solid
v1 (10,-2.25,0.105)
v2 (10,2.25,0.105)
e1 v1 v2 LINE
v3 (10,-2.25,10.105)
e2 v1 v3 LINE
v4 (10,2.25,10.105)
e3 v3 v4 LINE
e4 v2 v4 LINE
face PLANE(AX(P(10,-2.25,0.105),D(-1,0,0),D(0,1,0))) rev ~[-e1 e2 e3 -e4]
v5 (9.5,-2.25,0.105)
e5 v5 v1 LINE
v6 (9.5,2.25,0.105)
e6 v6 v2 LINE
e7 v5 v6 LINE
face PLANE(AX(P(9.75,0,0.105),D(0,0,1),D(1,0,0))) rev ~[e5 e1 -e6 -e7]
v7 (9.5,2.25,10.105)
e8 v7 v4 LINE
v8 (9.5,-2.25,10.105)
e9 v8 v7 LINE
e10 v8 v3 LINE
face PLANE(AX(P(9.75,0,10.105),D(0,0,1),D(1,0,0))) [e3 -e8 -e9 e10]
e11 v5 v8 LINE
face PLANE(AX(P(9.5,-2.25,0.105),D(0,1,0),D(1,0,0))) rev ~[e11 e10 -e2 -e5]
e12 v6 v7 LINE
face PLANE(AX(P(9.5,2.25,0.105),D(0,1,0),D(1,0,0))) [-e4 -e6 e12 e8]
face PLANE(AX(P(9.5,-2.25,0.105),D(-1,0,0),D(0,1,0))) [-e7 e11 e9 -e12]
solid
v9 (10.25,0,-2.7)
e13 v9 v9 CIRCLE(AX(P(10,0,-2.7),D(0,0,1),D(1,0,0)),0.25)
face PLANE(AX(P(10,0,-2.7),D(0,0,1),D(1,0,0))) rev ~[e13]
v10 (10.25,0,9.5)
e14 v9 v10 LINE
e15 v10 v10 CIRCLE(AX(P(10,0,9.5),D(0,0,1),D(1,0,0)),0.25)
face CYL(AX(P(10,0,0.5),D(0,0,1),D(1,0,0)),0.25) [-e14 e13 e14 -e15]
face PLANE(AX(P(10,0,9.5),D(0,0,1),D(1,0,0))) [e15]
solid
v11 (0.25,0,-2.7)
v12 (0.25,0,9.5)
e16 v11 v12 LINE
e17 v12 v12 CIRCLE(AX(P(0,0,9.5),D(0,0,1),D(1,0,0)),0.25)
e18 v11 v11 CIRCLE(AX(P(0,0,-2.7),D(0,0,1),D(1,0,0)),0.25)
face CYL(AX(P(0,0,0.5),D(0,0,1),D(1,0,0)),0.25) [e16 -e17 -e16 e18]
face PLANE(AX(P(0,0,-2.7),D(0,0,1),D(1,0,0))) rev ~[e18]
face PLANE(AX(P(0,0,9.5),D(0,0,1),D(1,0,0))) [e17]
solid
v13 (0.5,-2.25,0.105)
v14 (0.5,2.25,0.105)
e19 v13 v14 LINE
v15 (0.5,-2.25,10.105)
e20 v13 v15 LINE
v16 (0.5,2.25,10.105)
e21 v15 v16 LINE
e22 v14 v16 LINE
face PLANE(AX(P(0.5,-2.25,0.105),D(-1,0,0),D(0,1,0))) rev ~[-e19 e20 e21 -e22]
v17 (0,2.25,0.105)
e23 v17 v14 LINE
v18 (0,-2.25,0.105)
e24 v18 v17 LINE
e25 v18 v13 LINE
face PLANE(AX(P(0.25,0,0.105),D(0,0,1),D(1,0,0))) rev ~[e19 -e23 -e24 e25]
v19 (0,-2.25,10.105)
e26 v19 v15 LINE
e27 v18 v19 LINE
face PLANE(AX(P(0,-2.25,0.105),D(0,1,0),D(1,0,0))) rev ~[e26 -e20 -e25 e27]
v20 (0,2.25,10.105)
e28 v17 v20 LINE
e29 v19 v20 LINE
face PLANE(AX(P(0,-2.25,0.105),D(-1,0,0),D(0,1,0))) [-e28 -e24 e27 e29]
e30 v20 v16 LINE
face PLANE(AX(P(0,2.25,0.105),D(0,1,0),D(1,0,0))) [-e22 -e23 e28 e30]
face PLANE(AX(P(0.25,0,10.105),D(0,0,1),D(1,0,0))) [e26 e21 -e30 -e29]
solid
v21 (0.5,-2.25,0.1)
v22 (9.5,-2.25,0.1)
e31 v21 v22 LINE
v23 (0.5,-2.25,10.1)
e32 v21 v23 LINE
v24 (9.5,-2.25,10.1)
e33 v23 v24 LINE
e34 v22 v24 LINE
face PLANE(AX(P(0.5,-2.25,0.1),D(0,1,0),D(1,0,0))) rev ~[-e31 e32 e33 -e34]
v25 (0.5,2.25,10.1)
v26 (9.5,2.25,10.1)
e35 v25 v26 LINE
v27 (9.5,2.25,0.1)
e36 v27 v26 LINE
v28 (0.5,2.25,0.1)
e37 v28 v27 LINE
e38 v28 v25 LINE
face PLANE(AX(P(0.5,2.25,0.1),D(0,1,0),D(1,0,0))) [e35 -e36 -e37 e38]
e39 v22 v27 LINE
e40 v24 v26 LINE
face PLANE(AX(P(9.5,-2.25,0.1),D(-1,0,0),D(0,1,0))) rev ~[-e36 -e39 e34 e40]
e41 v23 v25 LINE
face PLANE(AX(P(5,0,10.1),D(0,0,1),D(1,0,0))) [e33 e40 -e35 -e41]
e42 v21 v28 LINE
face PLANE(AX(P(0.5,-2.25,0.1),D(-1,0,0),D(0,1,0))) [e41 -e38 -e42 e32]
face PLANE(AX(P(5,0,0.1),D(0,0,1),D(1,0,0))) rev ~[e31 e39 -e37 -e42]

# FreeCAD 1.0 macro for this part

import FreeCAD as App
import Part
import Sketcher
from FreeCAD import Vector

doc = App.newDocument("Part")
body = doc.addObject("PartDesign::Body", "Body")

# Sketch on XY plane
sketch1 = body.newObject("Sketcher::SketchObject", "Sketch")
sketch1.AttachmentSupport = (doc.getObject("XY_Plane"), [""])
sketch1.MapMode = "FlatFace"
sketch1.AttachmentOffset = App.Placement(Vector(0, 0, 0.1), App.Rotation())
sketch1.addGeometry(Part.LineSegment(Vector(0.5, 2.25, 0), Vector(0.5, -2.25, 0)), False)
sketch1.addGeometry(Part.LineSegment(Vector(0.5, -2.25, 0), Vector(9.5, -2.25, 0)), False)
sketch1.addGeometry(Part.LineSegment(Vector(9.5, -2.25, 0), Vector(9.5, 2.25, 0)), False)
sketch1.addGeometry(Part.LineSegment(Vector(9.5, 2.25, 0), Vector(0.5, 2.25, 0)), False)
sketch1.addConstraint(Sketcher.Constraint("Coincident", 0, 2, 1, 1))
sketch1.addConstraint(Sketcher.Constraint("Coincident", 1, 2, 2, 1))
sketch1.addConstraint(Sketcher.Constraint("Coincident", 2, 2, 3, 1))
sketch1.addConstraint(Sketcher.Constraint("Coincident", 3, 2, 0, 1))
sketch1.addConstraint(Sketcher.Constraint("Vertical", 0))
sketch1.addConstraint(Sketcher.Constraint("Horizontal", 1))
sketch1.addConstraint(Sketcher.Constraint("Vertical", 2))
sketch1.addConstraint(Sketcher.Constraint("Horizontal", 3))
sketch1.addConstraint(Sketcher.Constraint("DistanceX", 1, 1, 1, 2, 9.0))
sketch1.addConstraint(Sketcher.Constraint("DistanceY", 0, 2, 0, 1, 4.5))
sketch1.addConstraint(Sketcher.Constraint("DistanceX", -1, 1, 0, 2, 0.5))
sketch1.addConstraint(Sketcher.Constraint("DistanceY", 0, 2, -1, 1, 2.25))
pad1 = body.newObject("PartDesign::Pad", "Pad")
pad1.Profile = sketch1
pad1.Length = 10
body2 = doc.addObject("PartDesign::Body", "Body001")
body2.AllowCompound = True

# Sketch on XY plane
sketch2 = body2.newObject("Sketcher::SketchObject", "Sketch001")
sketch2.AttachmentSupport = (doc.getObject("XY_Plane001"), [""])
sketch2.MapMode = "FlatFace"
sketch2.AttachmentOffset = App.Placement(Vector(0, 0, 0.5), App.Rotation())
sketch2.addGeometry(Part.Circle(Vector(0, 0, 0), Vector(0, 0, 1), 0.25), False)
sketch2.addGeometry(Part.Circle(Vector(10, 0, 0), Vector(0, 0, 1), 0.25), False)
sketch2.addConstraint(Sketcher.Constraint("Coincident", 0, 3, -1, 1))
sketch2.addConstraint(Sketcher.Constraint("Equal", 0, 1))
sketch2.addConstraint(Sketcher.Constraint("PointOnObject", 1, 3, -1))
sketch2.addConstraint(Sketcher.Constraint("Diameter", 0, 0.5))
sketch2.addConstraint(Sketcher.Constraint("DistanceX", -1, 1, 1, 3, 10.0))
pad2 = body2.newObject("PartDesign::Pad", "Pad001")
pad2.Profile = sketch2
pad2.Type = "TwoLengths"
pad2.Length = 9
pad2.Length2 = 3.2
body3 = doc.addObject("PartDesign::Body", "Body002")
body3.AllowCompound = True

# Sketch on XY plane
sketch3 = body3.newObject("Sketcher::SketchObject", "Sketch002")
sketch3.AttachmentSupport = (doc.getObject("XY_Plane002"), [""])
sketch3.MapMode = "FlatFace"
sketch3.AttachmentOffset = App.Placement(Vector(0, 0, 0.105), App.Rotation())
sketch3.addGeometry(Part.LineSegment(Vector(0, 2.25, 0), Vector(0, -2.25, 0)), False)
sketch3.addGeometry(Part.LineSegment(Vector(0, -2.25, 0), Vector(0.5, -2.25, 0)), False)
sketch3.addGeometry(Part.LineSegment(Vector(0.5, -2.25, 0), Vector(0.5, 2.25, 0)), False)
sketch3.addGeometry(Part.LineSegment(Vector(0.5, 2.25, 0), Vector(0, 2.25, 0)), False)
sketch3.addGeometry(Part.LineSegment(Vector(9.5, 2.25, 0), Vector(9.5, -2.25, 0)), False)
sketch3.addGeometry(Part.LineSegment(Vector(9.5, -2.25, 0), Vector(10, -2.25, 0)), False)
sketch3.addGeometry(Part.LineSegment(Vector(10, -2.25, 0), Vector(10, 2.25, 0)), False)
sketch3.addGeometry(Part.LineSegment(Vector(10, 2.25, 0), Vector(9.5, 2.25, 0)), False)
sketch3.addConstraint(Sketcher.Constraint("Coincident", 0, 2, 1, 1))
sketch3.addConstraint(Sketcher.Constraint("Coincident", 1, 2, 2, 1))
sketch3.addConstraint(Sketcher.Constraint("Coincident", 2, 2, 3, 1))
sketch3.addConstraint(Sketcher.Constraint("Coincident", 3, 2, 0, 1))
sketch3.addConstraint(Sketcher.Constraint("Coincident", 4, 2, 5, 1))
sketch3.addConstraint(Sketcher.Constraint("Coincident", 5, 2, 6, 1))
sketch3.addConstraint(Sketcher.Constraint("Coincident", 6, 2, 7, 1))
sketch3.addConstraint(Sketcher.Constraint("Coincident", 7, 2, 4, 1))
sketch3.addConstraint(Sketcher.Constraint("Vertical", 0))
sketch3.addConstraint(Sketcher.Constraint("Horizontal", 1))
sketch3.addConstraint(Sketcher.Constraint("Vertical", 2))
sketch3.addConstraint(Sketcher.Constraint("Horizontal", 3))
sketch3.addConstraint(Sketcher.Constraint("Vertical", 4))
sketch3.addConstraint(Sketcher.Constraint("Horizontal", 5))
sketch3.addConstraint(Sketcher.Constraint("Vertical", 6))
sketch3.addConstraint(Sketcher.Constraint("Horizontal", 7))
sketch3.addConstraint(Sketcher.Constraint("Symmetric", 0, 2, 3, 2, -1, 1))
sketch3.addConstraint(Sketcher.Constraint("Horizontal", 1, 2, 4, 2))
sketch3.addConstraint(Sketcher.Constraint("Horizontal", 3, 2, 6, 2))
sketch3.addConstraint(Sketcher.Constraint("Equal", 3, 5))
sketch3.addConstraint(Sketcher.Constraint("DistanceX", 1, 1, 1, 2, 0.5))
sketch3.addConstraint(Sketcher.Constraint("DistanceY", 0, 2, 0, 1, 4.5))
sketch3.addConstraint(Sketcher.Constraint("DistanceX", -1, 1, 5, 2, 10.0))
pad3 = body3.newObject("PartDesign::Pad", "Pad002")
pad3.Profile = sketch3
pad3.Length = 10

doc.recompute()
